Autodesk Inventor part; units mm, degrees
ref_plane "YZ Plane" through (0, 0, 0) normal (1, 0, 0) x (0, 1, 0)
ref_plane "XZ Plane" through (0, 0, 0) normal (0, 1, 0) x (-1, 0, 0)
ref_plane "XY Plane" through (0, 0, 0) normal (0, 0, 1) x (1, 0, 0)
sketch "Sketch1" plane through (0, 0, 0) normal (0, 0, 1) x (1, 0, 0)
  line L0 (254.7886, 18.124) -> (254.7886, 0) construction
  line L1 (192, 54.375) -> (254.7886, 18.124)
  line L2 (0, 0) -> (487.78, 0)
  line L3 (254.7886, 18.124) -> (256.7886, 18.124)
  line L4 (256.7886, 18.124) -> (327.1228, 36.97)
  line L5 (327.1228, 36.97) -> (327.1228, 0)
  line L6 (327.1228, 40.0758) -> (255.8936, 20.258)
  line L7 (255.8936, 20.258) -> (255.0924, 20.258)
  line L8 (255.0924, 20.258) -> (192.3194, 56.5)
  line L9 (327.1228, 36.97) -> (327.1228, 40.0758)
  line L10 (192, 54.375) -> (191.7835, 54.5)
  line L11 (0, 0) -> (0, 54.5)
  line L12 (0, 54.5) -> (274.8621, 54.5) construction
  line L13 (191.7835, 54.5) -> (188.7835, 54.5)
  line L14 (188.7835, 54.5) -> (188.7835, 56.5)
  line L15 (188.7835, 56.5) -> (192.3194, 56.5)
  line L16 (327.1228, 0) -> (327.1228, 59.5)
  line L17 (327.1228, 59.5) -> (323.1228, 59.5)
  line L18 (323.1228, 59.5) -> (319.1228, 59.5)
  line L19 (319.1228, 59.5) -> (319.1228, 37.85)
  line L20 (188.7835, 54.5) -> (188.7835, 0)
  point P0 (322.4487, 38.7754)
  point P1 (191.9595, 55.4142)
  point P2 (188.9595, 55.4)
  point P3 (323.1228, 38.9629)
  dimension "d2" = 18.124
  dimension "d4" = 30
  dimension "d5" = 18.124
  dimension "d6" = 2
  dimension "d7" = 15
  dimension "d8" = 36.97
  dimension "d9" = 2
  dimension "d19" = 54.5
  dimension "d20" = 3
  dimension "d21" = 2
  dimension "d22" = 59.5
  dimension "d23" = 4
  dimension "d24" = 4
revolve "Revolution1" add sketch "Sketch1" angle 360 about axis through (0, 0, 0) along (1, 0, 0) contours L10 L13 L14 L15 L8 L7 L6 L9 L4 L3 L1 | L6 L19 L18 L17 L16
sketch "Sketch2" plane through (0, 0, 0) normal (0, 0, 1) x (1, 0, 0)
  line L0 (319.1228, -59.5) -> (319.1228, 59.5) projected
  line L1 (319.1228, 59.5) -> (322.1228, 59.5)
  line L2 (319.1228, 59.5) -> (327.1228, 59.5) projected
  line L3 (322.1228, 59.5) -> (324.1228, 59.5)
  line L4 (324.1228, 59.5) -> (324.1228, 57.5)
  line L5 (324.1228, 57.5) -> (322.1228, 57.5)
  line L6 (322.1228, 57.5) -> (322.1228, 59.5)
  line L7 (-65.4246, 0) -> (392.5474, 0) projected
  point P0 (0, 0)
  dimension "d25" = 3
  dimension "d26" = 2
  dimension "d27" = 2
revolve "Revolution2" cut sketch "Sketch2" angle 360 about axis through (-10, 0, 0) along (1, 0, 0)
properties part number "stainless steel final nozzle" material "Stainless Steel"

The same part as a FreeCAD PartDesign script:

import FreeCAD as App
import Part
import Sketcher
from FreeCAD import Vector
Q = App.Units.Quantity

doc = App.newDocument("Part")
body = doc.addObject("PartDesign::Body", "Body")

# Sketch on XY plane
sketch1 = body.newObject("Sketcher::SketchObject", "Sketch")
sketch1.AttachmentSupport = (doc.getObject("XY_Plane"), [""])
sketch1.MapMode = "FlatFace"
sketch1.addGeometry([
    Part.LineSegment(Vector(191.7835, 54.5, 0), Vector(192, 54.375, 0)),  # 0
    Part.LineSegment(Vector(192, 54.375, 0), Vector(254.7886, 18.124, 0)),  # 1
    Part.LineSegment(Vector(254.7886, 18.124, 0), Vector(256.7886, 18.124, 0)),  # 2
    Part.LineSegment(Vector(256.7886, 18.124, 0), Vector(327.1228, 36.97, 0)),  # 3
    Part.LineSegment(Vector(327.1228, 36.97, 0), Vector(327.1228, 59.5, 0)),  # 4
    Part.LineSegment(Vector(327.1228, 59.5, 0), Vector(319.1228, 59.5, 0)),  # 5
    Part.LineSegment(Vector(319.1228, 59.5, 0), Vector(319.1228, 37.85, 0)),  # 6
    Part.LineSegment(Vector(319.122802, 37.849994, 0), Vector(255.8936, 20.258, 0)),  # 7
    Part.LineSegment(Vector(255.8936, 20.258, 0), Vector(255.0924, 20.258, 0)),  # 8
    Part.LineSegment(Vector(255.0924, 20.258, 0), Vector(192.3194, 56.5, 0)),  # 9
    Part.LineSegment(Vector(192.3194, 56.5, 0), Vector(188.7835, 56.5, 0)),  # 10
    Part.LineSegment(Vector(188.7835, 56.5, 0), Vector(188.7835, 54.5, 0)),  # 11
    Part.LineSegment(Vector(188.7835, 54.5, 0), Vector(191.7835, 54.5, 0)),  # 12
], False)
sketch1.addConstraint([
    Sketcher.Constraint("Coincident", 0, 2, 1, 1),
    Sketcher.Constraint("Coincident", 1, 2, 2, 1),
    Sketcher.Constraint("Coincident", 2, 2, 3, 1),
    Sketcher.Constraint("Coincident", 3, 2, 4, 1),
    Sketcher.Constraint("Coincident", 4, 2, 5, 1),
    Sketcher.Constraint("Coincident", 5, 2, 6, 1),
    Sketcher.Constraint("Coincident", 6, 2, 7, 1),
    Sketcher.Constraint("Coincident", 7, 2, 8, 1),
    Sketcher.Constraint("Coincident", 8, 2, 9, 1),
    Sketcher.Constraint("Coincident", 9, 2, 10, 1),
    Sketcher.Constraint("Coincident", 10, 2, 11, 1),
    Sketcher.Constraint("Coincident", 11, 2, 12, 1),
    Sketcher.Constraint("Coincident", 12, 2, 0, 1),
    Sketcher.Constraint("Horizontal", 2),
    Sketcher.Constraint("Vertical", 4),
    Sketcher.Constraint("Horizontal", 5),
    Sketcher.Constraint("Vertical", 6),
    Sketcher.Constraint("Horizontal", 8),
    Sketcher.Constraint("Horizontal", 10),
    Sketcher.Constraint("Vertical", 11),
    Sketcher.Constraint("Horizontal", 12),
    Sketcher.Constraint("Parallel", 0, 1),
    Sketcher.Constraint("Parallel", 1, 9),
    Sketcher.Constraint("Equal", 2, 11),
    Sketcher.Constraint("DistanceX", 2, 1, 2, 2, Q("2 mm")),
    Sketcher.Constraint("DistanceX", 12, 1, 12, 2, Q("3 mm")),
    Sketcher.Constraint("Angle", 1, Q("-30 deg")),
    Sketcher.Constraint("Angle", 3, Q("15 deg")),
    Sketcher.Constraint("DistanceY", -1, 1, 4, 2, Q("59.5 mm")),
    Sketcher.Constraint("DistanceY", -1, 1, 11, 2, Q("54.5 mm")),
    Sketcher.Constraint("DistanceX", 5, 2, 5, 1, Q("8 mm")),
    Sketcher.Constraint("DistanceY", -1, 1, 3, 2, Q("36.97 mm")),
    Sketcher.Constraint("DistanceY", -1, 1, 1, 2, Q("18.124 mm")),
    Sketcher.Constraint("DistanceX", -1, 1, 0, 2, Q("192 mm")),
    Sketcher.Constraint("DistanceY", 6, 2, 6, 1, Q("21.65 mm")),
    Sketcher.Constraint("Distance", 0, Q("0.25 mm")),
    Sketcher.Constraint("DistanceX", 10, 2, 10, 1, Q("3.536 mm")),
    Sketcher.Constraint("DistanceX", 10, 2, 7, 2, Q("67.11 mm")),
    Sketcher.Constraint("Distance", 9, Q("72.484 mm")),
])
revolution = body.newObject("PartDesign::Revolution", "Revolution")
revolution.Profile = sketch1
revolution.ReferenceAxis = (sketch1, ["H_Axis"])
revolution.Angle = 360

# Sketch on XY plane
sketch2 = body.newObject("Sketcher::SketchObject", "Sketch001")
sketch2.AttachmentSupport = (doc.getObject("XY_Plane"), [""])
sketch2.MapMode = "FlatFace"
sketch2.addGeometry([
    Part.LineSegment(Vector(324.1228, 59.5, 0), Vector(322.1228, 59.5, 0)),
    Part.LineSegment(Vector(322.1228, 59.5, 0), Vector(322.1228, 57.5, 0)),
    Part.LineSegment(Vector(322.1228, 57.5, 0), Vector(324.1228, 57.5, 0)),
    Part.LineSegment(Vector(324.1228, 57.5, 0), Vector(324.1228, 59.5, 0)),
], False)
sketch2.addConstraint([
    Sketcher.Constraint("Coincident", 0, 2, 1, 1),
    Sketcher.Constraint("Coincident", 1, 2, 2, 1),
    Sketcher.Constraint("Coincident", 2, 2, 3, 1),
    Sketcher.Constraint("Coincident", 3, 2, 0, 1),
    Sketcher.Constraint("Horizontal", 0),
    Sketcher.Constraint("Vertical", 1),
    Sketcher.Constraint("Horizontal", 2),
    Sketcher.Constraint("Vertical", 3),
    Sketcher.Constraint("Equal", 2, 1),
    Sketcher.Constraint("DistanceX", 0, 2, 0, 1, Q("2 mm")),
    Sketcher.Constraint("DistanceY", -1, 1, 0, 2, Q("59.5 mm")),
    Sketcher.Constraint("DistanceX", -1, 1, 0, 2, Q("322.1228 mm")),
])
groove = body.newObject("PartDesign::Groove", "Groove")
groove.Profile = sketch2
groove.ReferenceAxis = (sketch2, ["H_Axis"])
groove.Angle = 360

doc.recompute()
